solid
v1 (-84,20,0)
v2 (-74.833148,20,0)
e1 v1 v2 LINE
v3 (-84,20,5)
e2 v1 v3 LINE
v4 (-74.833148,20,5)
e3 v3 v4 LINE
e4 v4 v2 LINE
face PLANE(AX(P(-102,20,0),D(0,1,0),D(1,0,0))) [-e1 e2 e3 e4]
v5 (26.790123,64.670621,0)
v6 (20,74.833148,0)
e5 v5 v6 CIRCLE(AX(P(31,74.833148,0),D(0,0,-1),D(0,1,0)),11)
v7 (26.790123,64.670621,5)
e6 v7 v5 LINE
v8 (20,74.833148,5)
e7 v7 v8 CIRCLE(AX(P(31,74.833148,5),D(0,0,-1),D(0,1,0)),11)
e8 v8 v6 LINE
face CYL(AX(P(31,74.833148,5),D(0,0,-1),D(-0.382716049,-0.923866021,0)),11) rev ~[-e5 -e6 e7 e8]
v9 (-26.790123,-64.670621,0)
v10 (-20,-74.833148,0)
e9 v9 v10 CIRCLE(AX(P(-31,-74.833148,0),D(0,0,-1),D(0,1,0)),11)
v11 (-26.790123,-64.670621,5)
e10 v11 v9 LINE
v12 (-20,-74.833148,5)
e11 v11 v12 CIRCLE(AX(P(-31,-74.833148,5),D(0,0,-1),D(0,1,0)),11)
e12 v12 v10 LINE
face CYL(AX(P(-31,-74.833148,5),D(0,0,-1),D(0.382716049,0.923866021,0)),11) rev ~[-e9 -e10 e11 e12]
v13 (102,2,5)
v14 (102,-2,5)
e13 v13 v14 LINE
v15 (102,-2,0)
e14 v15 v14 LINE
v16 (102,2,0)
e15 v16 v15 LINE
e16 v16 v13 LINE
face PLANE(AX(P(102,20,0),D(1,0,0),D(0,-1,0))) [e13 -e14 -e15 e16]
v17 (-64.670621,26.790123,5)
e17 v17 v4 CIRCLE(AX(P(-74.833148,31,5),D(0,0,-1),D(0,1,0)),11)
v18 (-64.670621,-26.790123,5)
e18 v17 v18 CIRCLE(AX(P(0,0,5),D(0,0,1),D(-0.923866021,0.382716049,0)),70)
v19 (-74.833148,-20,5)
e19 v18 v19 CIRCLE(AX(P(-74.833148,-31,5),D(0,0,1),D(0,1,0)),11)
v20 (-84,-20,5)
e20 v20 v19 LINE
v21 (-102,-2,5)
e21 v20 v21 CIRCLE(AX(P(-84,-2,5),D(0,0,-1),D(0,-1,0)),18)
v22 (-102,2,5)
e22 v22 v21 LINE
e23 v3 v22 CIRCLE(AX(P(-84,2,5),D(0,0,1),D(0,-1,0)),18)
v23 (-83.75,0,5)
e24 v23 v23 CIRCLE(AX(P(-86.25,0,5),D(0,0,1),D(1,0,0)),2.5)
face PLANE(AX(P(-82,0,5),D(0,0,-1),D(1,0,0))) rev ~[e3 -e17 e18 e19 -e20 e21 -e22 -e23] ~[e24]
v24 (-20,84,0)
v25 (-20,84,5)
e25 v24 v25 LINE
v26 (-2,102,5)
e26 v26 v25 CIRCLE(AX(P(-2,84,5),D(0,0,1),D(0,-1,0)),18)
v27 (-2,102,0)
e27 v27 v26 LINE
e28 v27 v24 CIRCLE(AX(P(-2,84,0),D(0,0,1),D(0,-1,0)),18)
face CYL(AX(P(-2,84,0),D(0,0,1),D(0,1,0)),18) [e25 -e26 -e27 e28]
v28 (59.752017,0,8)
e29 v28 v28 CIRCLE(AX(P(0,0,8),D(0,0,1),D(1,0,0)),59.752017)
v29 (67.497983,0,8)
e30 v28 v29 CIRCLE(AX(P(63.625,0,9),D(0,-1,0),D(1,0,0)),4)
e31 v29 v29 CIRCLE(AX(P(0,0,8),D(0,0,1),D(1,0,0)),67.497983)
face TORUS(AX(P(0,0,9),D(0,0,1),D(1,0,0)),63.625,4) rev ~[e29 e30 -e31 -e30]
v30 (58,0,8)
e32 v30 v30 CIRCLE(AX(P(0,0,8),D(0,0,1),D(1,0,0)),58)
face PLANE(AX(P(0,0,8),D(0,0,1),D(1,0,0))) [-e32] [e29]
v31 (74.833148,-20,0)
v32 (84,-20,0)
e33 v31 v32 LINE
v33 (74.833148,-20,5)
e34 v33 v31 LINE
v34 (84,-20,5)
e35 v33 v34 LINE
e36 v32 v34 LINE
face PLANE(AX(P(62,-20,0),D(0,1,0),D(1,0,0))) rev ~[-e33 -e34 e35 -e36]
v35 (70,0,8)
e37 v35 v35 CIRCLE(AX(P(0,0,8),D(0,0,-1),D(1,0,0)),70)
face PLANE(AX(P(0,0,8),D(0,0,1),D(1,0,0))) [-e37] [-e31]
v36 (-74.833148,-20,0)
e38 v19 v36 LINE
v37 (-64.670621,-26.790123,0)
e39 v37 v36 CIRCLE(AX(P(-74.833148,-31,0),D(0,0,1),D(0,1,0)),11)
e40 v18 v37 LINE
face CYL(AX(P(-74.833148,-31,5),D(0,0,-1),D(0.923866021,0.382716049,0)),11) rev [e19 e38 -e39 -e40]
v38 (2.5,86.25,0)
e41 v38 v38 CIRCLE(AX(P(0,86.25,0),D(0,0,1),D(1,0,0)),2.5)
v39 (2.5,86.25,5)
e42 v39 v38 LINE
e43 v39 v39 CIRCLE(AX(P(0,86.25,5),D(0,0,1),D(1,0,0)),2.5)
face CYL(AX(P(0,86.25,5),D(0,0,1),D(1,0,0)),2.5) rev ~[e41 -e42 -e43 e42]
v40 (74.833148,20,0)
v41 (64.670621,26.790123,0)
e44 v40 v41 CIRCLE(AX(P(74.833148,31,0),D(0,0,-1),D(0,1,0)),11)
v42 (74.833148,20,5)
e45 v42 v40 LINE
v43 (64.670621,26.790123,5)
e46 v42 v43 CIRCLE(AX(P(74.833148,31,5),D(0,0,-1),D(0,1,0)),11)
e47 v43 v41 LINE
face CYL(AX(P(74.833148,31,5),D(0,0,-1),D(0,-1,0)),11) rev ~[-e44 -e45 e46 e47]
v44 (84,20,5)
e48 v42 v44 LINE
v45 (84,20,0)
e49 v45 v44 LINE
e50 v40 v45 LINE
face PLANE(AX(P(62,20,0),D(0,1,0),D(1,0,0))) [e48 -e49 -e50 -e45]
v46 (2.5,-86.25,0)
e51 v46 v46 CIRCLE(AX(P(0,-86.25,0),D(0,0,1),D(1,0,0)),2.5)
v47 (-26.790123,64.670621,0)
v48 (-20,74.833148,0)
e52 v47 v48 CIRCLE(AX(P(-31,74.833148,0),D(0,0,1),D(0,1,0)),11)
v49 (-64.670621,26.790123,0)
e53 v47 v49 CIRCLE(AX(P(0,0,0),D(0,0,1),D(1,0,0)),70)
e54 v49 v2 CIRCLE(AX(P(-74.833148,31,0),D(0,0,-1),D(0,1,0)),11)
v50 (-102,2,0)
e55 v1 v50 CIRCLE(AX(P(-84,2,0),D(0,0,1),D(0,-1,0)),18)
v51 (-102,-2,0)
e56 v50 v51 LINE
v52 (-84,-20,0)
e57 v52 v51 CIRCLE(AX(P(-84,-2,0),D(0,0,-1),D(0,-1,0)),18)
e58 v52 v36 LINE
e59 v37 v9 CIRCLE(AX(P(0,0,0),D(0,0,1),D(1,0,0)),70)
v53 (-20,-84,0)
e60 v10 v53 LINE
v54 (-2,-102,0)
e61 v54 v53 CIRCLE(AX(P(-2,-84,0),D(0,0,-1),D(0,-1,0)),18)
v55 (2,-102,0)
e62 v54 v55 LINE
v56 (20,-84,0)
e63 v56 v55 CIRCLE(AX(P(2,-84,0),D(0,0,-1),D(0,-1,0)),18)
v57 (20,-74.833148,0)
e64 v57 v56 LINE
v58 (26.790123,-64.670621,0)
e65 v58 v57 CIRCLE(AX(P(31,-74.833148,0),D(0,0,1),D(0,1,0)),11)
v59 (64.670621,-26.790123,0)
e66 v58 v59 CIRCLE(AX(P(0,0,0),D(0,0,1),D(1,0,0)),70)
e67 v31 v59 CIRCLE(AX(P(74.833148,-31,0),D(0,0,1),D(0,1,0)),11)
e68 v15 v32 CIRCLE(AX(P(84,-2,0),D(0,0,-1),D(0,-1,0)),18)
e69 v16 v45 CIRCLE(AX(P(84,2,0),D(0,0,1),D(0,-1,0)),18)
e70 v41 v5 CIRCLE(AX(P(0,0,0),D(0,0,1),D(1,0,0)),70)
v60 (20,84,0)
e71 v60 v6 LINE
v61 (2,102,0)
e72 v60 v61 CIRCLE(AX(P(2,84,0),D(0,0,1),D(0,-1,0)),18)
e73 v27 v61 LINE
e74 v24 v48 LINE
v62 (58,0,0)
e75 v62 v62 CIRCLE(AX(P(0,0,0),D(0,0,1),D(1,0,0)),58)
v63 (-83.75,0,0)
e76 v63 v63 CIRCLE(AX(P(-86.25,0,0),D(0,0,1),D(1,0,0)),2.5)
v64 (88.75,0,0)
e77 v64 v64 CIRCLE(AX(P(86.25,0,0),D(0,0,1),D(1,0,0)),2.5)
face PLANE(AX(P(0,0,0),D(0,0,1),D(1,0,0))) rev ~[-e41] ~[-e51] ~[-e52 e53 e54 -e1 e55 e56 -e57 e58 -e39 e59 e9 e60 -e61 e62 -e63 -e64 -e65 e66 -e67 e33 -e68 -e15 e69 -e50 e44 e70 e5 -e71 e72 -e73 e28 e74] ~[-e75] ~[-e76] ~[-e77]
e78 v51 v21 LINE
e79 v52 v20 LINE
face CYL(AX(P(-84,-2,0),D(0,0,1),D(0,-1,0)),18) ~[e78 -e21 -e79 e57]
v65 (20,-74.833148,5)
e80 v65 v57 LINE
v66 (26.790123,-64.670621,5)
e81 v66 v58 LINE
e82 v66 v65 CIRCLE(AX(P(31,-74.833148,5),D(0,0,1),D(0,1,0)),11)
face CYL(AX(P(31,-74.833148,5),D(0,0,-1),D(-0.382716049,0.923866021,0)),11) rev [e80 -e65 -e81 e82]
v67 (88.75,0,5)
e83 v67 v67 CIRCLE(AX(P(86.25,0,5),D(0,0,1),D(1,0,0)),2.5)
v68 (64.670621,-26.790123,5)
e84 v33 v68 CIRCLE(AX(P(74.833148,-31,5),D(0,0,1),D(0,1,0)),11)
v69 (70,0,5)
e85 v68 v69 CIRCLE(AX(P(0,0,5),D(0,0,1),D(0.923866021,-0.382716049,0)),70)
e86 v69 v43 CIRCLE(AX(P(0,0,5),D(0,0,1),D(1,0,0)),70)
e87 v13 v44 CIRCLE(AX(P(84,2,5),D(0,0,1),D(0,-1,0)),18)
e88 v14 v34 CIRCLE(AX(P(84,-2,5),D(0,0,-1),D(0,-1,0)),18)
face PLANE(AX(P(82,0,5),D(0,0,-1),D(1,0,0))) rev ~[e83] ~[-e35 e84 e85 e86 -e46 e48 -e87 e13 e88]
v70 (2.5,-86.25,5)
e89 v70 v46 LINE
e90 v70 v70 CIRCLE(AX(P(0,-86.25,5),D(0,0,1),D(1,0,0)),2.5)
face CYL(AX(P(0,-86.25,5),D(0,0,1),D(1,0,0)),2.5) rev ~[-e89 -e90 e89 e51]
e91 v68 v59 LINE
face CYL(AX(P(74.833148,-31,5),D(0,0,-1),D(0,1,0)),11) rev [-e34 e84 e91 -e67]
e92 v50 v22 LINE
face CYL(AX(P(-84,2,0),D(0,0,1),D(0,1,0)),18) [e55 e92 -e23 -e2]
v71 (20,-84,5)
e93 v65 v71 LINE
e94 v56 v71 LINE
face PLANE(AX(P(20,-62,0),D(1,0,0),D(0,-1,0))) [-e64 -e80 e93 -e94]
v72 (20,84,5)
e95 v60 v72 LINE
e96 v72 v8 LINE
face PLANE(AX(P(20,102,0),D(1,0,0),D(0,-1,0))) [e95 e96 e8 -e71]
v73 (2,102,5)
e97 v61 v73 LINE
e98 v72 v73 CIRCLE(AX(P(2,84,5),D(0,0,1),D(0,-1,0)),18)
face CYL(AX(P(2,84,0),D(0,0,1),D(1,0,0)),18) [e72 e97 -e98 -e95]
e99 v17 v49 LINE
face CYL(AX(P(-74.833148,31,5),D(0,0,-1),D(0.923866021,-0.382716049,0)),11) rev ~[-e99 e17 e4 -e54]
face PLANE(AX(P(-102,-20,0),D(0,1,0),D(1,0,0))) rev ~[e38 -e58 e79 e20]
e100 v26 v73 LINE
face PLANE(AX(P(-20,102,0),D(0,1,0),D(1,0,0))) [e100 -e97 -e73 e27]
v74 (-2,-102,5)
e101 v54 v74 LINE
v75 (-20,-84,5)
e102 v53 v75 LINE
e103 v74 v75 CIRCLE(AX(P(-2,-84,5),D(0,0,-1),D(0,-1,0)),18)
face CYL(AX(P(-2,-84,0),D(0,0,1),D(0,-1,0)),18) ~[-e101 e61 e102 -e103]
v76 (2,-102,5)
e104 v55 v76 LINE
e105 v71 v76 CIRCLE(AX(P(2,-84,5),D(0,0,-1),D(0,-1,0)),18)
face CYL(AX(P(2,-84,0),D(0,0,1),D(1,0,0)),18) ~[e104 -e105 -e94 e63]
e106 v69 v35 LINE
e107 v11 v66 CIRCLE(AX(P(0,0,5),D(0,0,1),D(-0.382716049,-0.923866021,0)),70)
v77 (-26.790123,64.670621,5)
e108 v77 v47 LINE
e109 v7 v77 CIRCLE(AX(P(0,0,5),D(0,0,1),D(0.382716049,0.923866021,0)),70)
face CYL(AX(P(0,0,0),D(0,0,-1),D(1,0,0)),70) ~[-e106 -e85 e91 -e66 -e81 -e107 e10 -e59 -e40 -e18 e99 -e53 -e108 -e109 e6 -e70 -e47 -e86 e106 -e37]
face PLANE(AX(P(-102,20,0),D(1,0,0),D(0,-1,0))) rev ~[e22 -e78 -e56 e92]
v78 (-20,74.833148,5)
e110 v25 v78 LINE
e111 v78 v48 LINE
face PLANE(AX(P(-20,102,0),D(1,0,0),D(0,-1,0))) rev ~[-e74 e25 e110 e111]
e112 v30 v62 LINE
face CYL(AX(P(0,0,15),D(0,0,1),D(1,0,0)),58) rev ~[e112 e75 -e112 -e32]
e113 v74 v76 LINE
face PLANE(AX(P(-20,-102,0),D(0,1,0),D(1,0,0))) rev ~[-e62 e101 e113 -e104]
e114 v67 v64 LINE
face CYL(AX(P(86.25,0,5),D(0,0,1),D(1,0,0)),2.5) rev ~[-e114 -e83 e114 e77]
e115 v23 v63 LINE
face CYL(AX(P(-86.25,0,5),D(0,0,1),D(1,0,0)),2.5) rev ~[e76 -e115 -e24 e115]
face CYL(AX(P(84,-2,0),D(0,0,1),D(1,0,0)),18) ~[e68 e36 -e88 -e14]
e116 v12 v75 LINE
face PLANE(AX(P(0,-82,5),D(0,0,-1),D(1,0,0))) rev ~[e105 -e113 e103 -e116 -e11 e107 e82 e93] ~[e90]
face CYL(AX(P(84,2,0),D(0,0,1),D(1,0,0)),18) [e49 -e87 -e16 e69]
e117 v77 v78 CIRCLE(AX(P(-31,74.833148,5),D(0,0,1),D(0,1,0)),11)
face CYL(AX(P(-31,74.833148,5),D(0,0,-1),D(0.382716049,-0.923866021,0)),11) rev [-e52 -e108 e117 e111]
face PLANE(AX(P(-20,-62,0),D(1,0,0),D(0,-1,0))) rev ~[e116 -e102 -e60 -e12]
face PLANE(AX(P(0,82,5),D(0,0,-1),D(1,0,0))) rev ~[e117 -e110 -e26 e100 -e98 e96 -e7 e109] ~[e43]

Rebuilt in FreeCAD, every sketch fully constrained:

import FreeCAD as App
import Part
import Sketcher
from FreeCAD import Vector
Q = App.Units.Quantity


def edges_at(feature, points):
    """Names of the edges that pass closest to the given points."""
    edges = feature.Shape.Edges
    near = lambda p: min(range(len(edges)), key=lambda i: edges[i].distToShape(Part.Vertex(*p))[0])
    return sorted({f"Edge{near(p) + 1}" for p in points})


def add_polygon(sketch, points):
    """Adds a closed chain of lines whose ends are joined by coincident constraints."""
    first, n = sketch.GeometryCount, len(points)
    for a, b in zip(points, points[1:] + points[:1]):
        sketch.addGeometry(Part.LineSegment(App.Vector(*a, 0), App.Vector(*b, 0)), False)
    for i in range(n):
        sketch.addConstraint(Sketcher.Constraint("Coincident", first + i, 2, first + (i + 1) % n, 1))

doc = App.newDocument("Part")
params = doc.addObject("Spreadsheet::Sheet", "Params")
for row, (alias, value) in enumerate([
    ("sketch1_diameter", "140 mm"),
    ("sketch1_diameter2", "114.5 mm"),
    ("pad1_length", "15 mm"),
    ("sketch2_diameter", "8 mm"),
    ("groove_angle", "360 deg"),
    ("sketch3_width", "40 mm"),
    ("pad2_length", "5 mm"),
    ("sketch4_diameter", "5 mm"),
    ("pocket1_length", "5 mm"),
    ("fillet_radius", "18 mm"),
    ("fillet2_radius", "11 mm"),
    ("sketch5_diameter", "116 mm"),
    ("sketch6_diameter", "142 mm"),
    ("pocket3_length", "7 mm"),
    ("sketch7_diameter", "8 mm"),
    ("groove2_angle", "360 deg"),
], start=1):
    params.set(f"A{row}", alias)
    params.set(f"B{row}", "=" + value)
    params.setAlias(f"B{row}", alias)

body = doc.addObject("PartDesign::Body", "Body")

sketch1 = doc.addObject("Sketcher::SketchObject", "Sketch")
body.addObject(sketch1)
sketch1.AttachmentSupport = (doc.XY_Plane, [""])
sketch1.MapMode = "FlatFace"
sketch1.addGeometry([
    Part.Circle(Vector(0, 0, 0), Vector(0, 0, 1), 70),
    Part.Circle(Vector(0, 0, 0), Vector(0, 0, 1), 57),
], False)
sketch1.addConstraint([
    Sketcher.Constraint("Coincident", 0, 3, -1, 1),
    Sketcher.Constraint("Coincident", 1, 3, -1, 1),
    Sketcher.Constraint("Diameter", 0, Q("140 mm")),
    Sketcher.Constraint("Diameter", 1, Q("114.5 mm")),
])
sketch1.setExpression("Constraints[2]", "Params.sketch1_diameter")
sketch1.setExpression("Constraints[3]", "Params.sketch1_diameter2")
pad1 = doc.addObject("PartDesign::Pad", "Pad")
body.addObject(pad1)
pad1.Profile = sketch1
pad1.setExpression("Length", "Params.pad1_length")

sketch2 = doc.addObject("Sketcher::SketchObject", "Sketch001")
body.addObject(sketch2)
sketch2.AttachmentSupport = (doc.XZ_Plane, [""])
sketch2.MapMode = "FlatFace"
sketch2.addGeometry(Part.Circle(Vector(63.6, 16, 0), Vector(0, 0, 1), 4), False)
sketch2.addConstraint([
    Sketcher.Constraint("Diameter", 0, Q("8 mm")),
    Sketcher.Constraint("DistanceY", -1, 1, 0, 3, Q("16 mm")),
    Sketcher.Constraint("DistanceX", -1, 1, 0, 3, Q("63.625 mm")),
])
sketch2.setExpression("Constraints[0]", "Params.sketch2_diameter")
groove = doc.addObject("PartDesign::Groove", "Groove")
body.addObject(groove)
groove.Profile = sketch2
groove.ReferenceAxis = (sketch2, ["V_Axis"])
groove.setExpression("Angle", "Params.groove_angle")

sketch3 = doc.addObject("Sketcher::SketchObject", "Sketch002")
body.addObject(sketch3)
sketch3.AttachmentSupport = (doc.XY_Plane, [""])
sketch3.MapMode = "FlatFace"
add_polygon(sketch3, [(62, -20), (62, 20), (102, 20), (102, -20)])
add_polygon(sketch3, [(-102, -20), (-102, 20), (-62, 20), (-62, -20)])
add_polygon(sketch3, [(-20, -102), (-20, -62), (20, -62), (20, -102)])
add_polygon(sketch3, [(-20, 62), (-20, 102), (20, 102), (20, 62)])
sketch3.addConstraint([
    Sketcher.Constraint("Vertical", 0),
    Sketcher.Constraint("Horizontal", 1),
    Sketcher.Constraint("Vertical", 2),
    Sketcher.Constraint("Horizontal", 3),
    Sketcher.Constraint("Vertical", 4),
    Sketcher.Constraint("Horizontal", 5),
    Sketcher.Constraint("Vertical", 6),
    Sketcher.Constraint("Horizontal", 7),
    Sketcher.Constraint("Vertical", 8),
    Sketcher.Constraint("Horizontal", 9),
    Sketcher.Constraint("Vertical", 10),
    Sketcher.Constraint("Horizontal", 11),
    Sketcher.Constraint("Vertical", 12),
    Sketcher.Constraint("Horizontal", 13),
    Sketcher.Constraint("Vertical", 14),
    Sketcher.Constraint("Horizontal", 15),
    Sketcher.Constraint("Symmetric", 2, 2, 4, 2, -1, 1),
    Sketcher.Constraint("Symmetric", 0, 2, 6, 2, -1, 1),
    Sketcher.Constraint("Symmetric", 10, 2, 12, 2, -1, 1),
    Sketcher.Constraint("Symmetric", 8, 2, 14, 2, -1, 1),
    Sketcher.Constraint("Horizontal", 1, 2, 4, 2),
    Sketcher.Constraint("Vertical", 11, 2, 12, 2),
    Sketcher.Constraint("Equal", 7, 9),
    Sketcher.Constraint("Equal", 15, 0),
    Sketcher.Constraint("Equal", 6, 8),
    Sketcher.Constraint("DistanceX", 1, 1, 1, 2, Q("40 mm")),
    Sketcher.Constraint("DistanceX", -1, 1, 0, 2, Q("62 mm")),
    Sketcher.Constraint("DistanceY", 8, 2, -1, 1, Q("62 mm")),
])
sketch3.setExpression("Constraints[41]", "Params.sketch3_width")
pad2 = doc.addObject("PartDesign::Pad", "Pad001")
body.addObject(pad2)
pad2.Profile = sketch3
pad2.setExpression("Length", "Params.pad2_length")

sketch4 = doc.addObject("Sketcher::SketchObject", "Sketch003")
body.addObject(sketch4)
sketch4.AttachmentSupport = (doc.XY_Plane, [""])
sketch4.MapMode = "FlatFace"
sketch4.AttachmentOffset = App.Placement(Vector(0, 0, 5), App.Rotation())
sketch4.addGeometry([
    Part.Circle(Vector(-86.2, 0, 0), Vector(0, 0, 1), 2.5),
    Part.Circle(Vector(0, -86.2, 0), Vector(0, 0, 1), 2.5),
    Part.Circle(Vector(86.2, 0, 0), Vector(0, 0, 1), 2.5),
    Part.Circle(Vector(0, 86.2, 0), Vector(0, 0, 1), 2.5),
], False)
sketch4.addConstraint([
    Sketcher.Constraint("Equal", 0, 1),
    Sketcher.Constraint("Equal", 1, 2),
    Sketcher.Constraint("Equal", 2, 3),
    Sketcher.Constraint("Symmetric", 0, 3, 2, 3, -1, 1),
    Sketcher.Constraint("Symmetric", 1, 3, 3, 3, -1, 1),
    Sketcher.Constraint("PointOnObject", 0, 3, -1),
    Sketcher.Constraint("PointOnObject", 1, 3, -2),
    Sketcher.Constraint("Diameter", 0, Q("5 mm")),
    Sketcher.Constraint("DistanceX", 0, 3, 2, 3, Q("172.5 mm")),
    Sketcher.Constraint("DistanceY", 1, 3, 3, 3, Q("172.5 mm")),
])
sketch4.setExpression("Constraints[7]", "Params.sketch4_diameter")
pocket1 = doc.addObject("PartDesign::Pocket", "Pocket")
body.addObject(pocket1)
pocket1.Profile = sketch4
pocket1.setExpression("Length", "Params.pocket1_length")
doc.recompute()

fillet = doc.addObject("PartDesign::Fillet", "Fillet")
body.addObject(fillet)
fillet.Base = (pocket1, edges_at(pocket1, [
    (-20, 102, 2.5),
    (20, 102, 2.5),
    (102, 20, 2.5),
    (102, -20, 2.5),
    (20, -102, 2.5),
    (-20, -102, 2.5),
    (-102, -20, 2.5),
    (-102, 20, 2.5),
]))
fillet.setExpression("Radius", "Params.fillet_radius")
doc.recompute()

fillet2 = doc.addObject("PartDesign::Fillet", "Fillet001")
body.addObject(fillet2)
fillet2.Base = (fillet, edges_at(fillet, [
    (67.082, 20, 2.5),
    (20, 67.082, 2.5),
    (-20, 67.082, 2.5),
    (-67.082, 20, 2.5),
    (-67.082, -20, 2.5),
    (-20, -67.082, 2.5),
    (20, -67.082, 2.5),
    (67.082, -20, 2.5),
]))
fillet2.setExpression("Radius", "Params.fillet2_radius")

sketch5 = doc.addObject("Sketcher::SketchObject", "Sketch004")
body.addObject(sketch5)
sketch5.AttachmentSupport = (doc.XY_Plane, [""])
sketch5.MapMode = "FlatFace"
sketch5.AttachmentOffset = App.Placement(Vector(0, 0, 15), App.Rotation())
sketch5.addGeometry(Part.Circle(Vector(0, 0, 0), Vector(0, 0, 1), 58), False)
sketch5.addConstraint([
    Sketcher.Constraint("Coincident", 0, 3, -1, 1),
    Sketcher.Constraint("Diameter", 0, Q("116 mm")),
])
sketch5.setExpression("Constraints[1]", "Params.sketch5_diameter")
pocket2 = doc.addObject("PartDesign::Pocket", "Pocket001")
body.addObject(pocket2)
pocket2.Profile = sketch5
pocket2.Type = "ThroughAll"

sketch6 = doc.addObject("Sketcher::SketchObject", "Sketch005")
body.addObject(sketch6)
sketch6.AttachmentSupport = (doc.XY_Plane, [""])
sketch6.MapMode = "FlatFace"
sketch6.AttachmentOffset = App.Placement(Vector(0, 0, 15), App.Rotation())
sketch6.addGeometry(Part.Circle(Vector(0, 0, 0), Vector(0, 0, 1), 71), False)
sketch6.addConstraint([
    Sketcher.Constraint("Coincident", 0, 3, -1, 1),
    Sketcher.Constraint("Diameter", 0, Q("142 mm")),
])
sketch6.setExpression("Constraints[1]", "Params.sketch6_diameter")
pocket3 = doc.addObject("PartDesign::Pocket", "Pocket002")
body.addObject(pocket3)
pocket3.Profile = sketch6
pocket3.setExpression("Length", "Params.pocket3_length")

sketch7 = doc.addObject("Sketcher::SketchObject", "Sketch006")
body.addObject(sketch7)
sketch7.AttachmentSupport = (doc.XZ_Plane, [""])
sketch7.MapMode = "FlatFace"
sketch7.addGeometry(Part.Circle(Vector(63.6, 9, 0), Vector(0, 0, 1), 4), False)
sketch7.addConstraint([
    Sketcher.Constraint("Diameter", 0, Q("8 mm")),
    Sketcher.Constraint("DistanceY", -1, 1, 0, 3, Q("9 mm")),
    Sketcher.Constraint("DistanceX", -1, 1, 0, 3, Q("63.625 mm")),
])
sketch7.setExpression("Constraints[0]", "Params.sketch7_diameter")
groove2 = doc.addObject("PartDesign::Groove", "Groove001")
body.addObject(groove2)
groove2.Profile = sketch7
groove2.ReferenceAxis = (sketch7, ["V_Axis"])
groove2.setExpression("Angle", "Params.groove2_angle")

doc.recompute()
